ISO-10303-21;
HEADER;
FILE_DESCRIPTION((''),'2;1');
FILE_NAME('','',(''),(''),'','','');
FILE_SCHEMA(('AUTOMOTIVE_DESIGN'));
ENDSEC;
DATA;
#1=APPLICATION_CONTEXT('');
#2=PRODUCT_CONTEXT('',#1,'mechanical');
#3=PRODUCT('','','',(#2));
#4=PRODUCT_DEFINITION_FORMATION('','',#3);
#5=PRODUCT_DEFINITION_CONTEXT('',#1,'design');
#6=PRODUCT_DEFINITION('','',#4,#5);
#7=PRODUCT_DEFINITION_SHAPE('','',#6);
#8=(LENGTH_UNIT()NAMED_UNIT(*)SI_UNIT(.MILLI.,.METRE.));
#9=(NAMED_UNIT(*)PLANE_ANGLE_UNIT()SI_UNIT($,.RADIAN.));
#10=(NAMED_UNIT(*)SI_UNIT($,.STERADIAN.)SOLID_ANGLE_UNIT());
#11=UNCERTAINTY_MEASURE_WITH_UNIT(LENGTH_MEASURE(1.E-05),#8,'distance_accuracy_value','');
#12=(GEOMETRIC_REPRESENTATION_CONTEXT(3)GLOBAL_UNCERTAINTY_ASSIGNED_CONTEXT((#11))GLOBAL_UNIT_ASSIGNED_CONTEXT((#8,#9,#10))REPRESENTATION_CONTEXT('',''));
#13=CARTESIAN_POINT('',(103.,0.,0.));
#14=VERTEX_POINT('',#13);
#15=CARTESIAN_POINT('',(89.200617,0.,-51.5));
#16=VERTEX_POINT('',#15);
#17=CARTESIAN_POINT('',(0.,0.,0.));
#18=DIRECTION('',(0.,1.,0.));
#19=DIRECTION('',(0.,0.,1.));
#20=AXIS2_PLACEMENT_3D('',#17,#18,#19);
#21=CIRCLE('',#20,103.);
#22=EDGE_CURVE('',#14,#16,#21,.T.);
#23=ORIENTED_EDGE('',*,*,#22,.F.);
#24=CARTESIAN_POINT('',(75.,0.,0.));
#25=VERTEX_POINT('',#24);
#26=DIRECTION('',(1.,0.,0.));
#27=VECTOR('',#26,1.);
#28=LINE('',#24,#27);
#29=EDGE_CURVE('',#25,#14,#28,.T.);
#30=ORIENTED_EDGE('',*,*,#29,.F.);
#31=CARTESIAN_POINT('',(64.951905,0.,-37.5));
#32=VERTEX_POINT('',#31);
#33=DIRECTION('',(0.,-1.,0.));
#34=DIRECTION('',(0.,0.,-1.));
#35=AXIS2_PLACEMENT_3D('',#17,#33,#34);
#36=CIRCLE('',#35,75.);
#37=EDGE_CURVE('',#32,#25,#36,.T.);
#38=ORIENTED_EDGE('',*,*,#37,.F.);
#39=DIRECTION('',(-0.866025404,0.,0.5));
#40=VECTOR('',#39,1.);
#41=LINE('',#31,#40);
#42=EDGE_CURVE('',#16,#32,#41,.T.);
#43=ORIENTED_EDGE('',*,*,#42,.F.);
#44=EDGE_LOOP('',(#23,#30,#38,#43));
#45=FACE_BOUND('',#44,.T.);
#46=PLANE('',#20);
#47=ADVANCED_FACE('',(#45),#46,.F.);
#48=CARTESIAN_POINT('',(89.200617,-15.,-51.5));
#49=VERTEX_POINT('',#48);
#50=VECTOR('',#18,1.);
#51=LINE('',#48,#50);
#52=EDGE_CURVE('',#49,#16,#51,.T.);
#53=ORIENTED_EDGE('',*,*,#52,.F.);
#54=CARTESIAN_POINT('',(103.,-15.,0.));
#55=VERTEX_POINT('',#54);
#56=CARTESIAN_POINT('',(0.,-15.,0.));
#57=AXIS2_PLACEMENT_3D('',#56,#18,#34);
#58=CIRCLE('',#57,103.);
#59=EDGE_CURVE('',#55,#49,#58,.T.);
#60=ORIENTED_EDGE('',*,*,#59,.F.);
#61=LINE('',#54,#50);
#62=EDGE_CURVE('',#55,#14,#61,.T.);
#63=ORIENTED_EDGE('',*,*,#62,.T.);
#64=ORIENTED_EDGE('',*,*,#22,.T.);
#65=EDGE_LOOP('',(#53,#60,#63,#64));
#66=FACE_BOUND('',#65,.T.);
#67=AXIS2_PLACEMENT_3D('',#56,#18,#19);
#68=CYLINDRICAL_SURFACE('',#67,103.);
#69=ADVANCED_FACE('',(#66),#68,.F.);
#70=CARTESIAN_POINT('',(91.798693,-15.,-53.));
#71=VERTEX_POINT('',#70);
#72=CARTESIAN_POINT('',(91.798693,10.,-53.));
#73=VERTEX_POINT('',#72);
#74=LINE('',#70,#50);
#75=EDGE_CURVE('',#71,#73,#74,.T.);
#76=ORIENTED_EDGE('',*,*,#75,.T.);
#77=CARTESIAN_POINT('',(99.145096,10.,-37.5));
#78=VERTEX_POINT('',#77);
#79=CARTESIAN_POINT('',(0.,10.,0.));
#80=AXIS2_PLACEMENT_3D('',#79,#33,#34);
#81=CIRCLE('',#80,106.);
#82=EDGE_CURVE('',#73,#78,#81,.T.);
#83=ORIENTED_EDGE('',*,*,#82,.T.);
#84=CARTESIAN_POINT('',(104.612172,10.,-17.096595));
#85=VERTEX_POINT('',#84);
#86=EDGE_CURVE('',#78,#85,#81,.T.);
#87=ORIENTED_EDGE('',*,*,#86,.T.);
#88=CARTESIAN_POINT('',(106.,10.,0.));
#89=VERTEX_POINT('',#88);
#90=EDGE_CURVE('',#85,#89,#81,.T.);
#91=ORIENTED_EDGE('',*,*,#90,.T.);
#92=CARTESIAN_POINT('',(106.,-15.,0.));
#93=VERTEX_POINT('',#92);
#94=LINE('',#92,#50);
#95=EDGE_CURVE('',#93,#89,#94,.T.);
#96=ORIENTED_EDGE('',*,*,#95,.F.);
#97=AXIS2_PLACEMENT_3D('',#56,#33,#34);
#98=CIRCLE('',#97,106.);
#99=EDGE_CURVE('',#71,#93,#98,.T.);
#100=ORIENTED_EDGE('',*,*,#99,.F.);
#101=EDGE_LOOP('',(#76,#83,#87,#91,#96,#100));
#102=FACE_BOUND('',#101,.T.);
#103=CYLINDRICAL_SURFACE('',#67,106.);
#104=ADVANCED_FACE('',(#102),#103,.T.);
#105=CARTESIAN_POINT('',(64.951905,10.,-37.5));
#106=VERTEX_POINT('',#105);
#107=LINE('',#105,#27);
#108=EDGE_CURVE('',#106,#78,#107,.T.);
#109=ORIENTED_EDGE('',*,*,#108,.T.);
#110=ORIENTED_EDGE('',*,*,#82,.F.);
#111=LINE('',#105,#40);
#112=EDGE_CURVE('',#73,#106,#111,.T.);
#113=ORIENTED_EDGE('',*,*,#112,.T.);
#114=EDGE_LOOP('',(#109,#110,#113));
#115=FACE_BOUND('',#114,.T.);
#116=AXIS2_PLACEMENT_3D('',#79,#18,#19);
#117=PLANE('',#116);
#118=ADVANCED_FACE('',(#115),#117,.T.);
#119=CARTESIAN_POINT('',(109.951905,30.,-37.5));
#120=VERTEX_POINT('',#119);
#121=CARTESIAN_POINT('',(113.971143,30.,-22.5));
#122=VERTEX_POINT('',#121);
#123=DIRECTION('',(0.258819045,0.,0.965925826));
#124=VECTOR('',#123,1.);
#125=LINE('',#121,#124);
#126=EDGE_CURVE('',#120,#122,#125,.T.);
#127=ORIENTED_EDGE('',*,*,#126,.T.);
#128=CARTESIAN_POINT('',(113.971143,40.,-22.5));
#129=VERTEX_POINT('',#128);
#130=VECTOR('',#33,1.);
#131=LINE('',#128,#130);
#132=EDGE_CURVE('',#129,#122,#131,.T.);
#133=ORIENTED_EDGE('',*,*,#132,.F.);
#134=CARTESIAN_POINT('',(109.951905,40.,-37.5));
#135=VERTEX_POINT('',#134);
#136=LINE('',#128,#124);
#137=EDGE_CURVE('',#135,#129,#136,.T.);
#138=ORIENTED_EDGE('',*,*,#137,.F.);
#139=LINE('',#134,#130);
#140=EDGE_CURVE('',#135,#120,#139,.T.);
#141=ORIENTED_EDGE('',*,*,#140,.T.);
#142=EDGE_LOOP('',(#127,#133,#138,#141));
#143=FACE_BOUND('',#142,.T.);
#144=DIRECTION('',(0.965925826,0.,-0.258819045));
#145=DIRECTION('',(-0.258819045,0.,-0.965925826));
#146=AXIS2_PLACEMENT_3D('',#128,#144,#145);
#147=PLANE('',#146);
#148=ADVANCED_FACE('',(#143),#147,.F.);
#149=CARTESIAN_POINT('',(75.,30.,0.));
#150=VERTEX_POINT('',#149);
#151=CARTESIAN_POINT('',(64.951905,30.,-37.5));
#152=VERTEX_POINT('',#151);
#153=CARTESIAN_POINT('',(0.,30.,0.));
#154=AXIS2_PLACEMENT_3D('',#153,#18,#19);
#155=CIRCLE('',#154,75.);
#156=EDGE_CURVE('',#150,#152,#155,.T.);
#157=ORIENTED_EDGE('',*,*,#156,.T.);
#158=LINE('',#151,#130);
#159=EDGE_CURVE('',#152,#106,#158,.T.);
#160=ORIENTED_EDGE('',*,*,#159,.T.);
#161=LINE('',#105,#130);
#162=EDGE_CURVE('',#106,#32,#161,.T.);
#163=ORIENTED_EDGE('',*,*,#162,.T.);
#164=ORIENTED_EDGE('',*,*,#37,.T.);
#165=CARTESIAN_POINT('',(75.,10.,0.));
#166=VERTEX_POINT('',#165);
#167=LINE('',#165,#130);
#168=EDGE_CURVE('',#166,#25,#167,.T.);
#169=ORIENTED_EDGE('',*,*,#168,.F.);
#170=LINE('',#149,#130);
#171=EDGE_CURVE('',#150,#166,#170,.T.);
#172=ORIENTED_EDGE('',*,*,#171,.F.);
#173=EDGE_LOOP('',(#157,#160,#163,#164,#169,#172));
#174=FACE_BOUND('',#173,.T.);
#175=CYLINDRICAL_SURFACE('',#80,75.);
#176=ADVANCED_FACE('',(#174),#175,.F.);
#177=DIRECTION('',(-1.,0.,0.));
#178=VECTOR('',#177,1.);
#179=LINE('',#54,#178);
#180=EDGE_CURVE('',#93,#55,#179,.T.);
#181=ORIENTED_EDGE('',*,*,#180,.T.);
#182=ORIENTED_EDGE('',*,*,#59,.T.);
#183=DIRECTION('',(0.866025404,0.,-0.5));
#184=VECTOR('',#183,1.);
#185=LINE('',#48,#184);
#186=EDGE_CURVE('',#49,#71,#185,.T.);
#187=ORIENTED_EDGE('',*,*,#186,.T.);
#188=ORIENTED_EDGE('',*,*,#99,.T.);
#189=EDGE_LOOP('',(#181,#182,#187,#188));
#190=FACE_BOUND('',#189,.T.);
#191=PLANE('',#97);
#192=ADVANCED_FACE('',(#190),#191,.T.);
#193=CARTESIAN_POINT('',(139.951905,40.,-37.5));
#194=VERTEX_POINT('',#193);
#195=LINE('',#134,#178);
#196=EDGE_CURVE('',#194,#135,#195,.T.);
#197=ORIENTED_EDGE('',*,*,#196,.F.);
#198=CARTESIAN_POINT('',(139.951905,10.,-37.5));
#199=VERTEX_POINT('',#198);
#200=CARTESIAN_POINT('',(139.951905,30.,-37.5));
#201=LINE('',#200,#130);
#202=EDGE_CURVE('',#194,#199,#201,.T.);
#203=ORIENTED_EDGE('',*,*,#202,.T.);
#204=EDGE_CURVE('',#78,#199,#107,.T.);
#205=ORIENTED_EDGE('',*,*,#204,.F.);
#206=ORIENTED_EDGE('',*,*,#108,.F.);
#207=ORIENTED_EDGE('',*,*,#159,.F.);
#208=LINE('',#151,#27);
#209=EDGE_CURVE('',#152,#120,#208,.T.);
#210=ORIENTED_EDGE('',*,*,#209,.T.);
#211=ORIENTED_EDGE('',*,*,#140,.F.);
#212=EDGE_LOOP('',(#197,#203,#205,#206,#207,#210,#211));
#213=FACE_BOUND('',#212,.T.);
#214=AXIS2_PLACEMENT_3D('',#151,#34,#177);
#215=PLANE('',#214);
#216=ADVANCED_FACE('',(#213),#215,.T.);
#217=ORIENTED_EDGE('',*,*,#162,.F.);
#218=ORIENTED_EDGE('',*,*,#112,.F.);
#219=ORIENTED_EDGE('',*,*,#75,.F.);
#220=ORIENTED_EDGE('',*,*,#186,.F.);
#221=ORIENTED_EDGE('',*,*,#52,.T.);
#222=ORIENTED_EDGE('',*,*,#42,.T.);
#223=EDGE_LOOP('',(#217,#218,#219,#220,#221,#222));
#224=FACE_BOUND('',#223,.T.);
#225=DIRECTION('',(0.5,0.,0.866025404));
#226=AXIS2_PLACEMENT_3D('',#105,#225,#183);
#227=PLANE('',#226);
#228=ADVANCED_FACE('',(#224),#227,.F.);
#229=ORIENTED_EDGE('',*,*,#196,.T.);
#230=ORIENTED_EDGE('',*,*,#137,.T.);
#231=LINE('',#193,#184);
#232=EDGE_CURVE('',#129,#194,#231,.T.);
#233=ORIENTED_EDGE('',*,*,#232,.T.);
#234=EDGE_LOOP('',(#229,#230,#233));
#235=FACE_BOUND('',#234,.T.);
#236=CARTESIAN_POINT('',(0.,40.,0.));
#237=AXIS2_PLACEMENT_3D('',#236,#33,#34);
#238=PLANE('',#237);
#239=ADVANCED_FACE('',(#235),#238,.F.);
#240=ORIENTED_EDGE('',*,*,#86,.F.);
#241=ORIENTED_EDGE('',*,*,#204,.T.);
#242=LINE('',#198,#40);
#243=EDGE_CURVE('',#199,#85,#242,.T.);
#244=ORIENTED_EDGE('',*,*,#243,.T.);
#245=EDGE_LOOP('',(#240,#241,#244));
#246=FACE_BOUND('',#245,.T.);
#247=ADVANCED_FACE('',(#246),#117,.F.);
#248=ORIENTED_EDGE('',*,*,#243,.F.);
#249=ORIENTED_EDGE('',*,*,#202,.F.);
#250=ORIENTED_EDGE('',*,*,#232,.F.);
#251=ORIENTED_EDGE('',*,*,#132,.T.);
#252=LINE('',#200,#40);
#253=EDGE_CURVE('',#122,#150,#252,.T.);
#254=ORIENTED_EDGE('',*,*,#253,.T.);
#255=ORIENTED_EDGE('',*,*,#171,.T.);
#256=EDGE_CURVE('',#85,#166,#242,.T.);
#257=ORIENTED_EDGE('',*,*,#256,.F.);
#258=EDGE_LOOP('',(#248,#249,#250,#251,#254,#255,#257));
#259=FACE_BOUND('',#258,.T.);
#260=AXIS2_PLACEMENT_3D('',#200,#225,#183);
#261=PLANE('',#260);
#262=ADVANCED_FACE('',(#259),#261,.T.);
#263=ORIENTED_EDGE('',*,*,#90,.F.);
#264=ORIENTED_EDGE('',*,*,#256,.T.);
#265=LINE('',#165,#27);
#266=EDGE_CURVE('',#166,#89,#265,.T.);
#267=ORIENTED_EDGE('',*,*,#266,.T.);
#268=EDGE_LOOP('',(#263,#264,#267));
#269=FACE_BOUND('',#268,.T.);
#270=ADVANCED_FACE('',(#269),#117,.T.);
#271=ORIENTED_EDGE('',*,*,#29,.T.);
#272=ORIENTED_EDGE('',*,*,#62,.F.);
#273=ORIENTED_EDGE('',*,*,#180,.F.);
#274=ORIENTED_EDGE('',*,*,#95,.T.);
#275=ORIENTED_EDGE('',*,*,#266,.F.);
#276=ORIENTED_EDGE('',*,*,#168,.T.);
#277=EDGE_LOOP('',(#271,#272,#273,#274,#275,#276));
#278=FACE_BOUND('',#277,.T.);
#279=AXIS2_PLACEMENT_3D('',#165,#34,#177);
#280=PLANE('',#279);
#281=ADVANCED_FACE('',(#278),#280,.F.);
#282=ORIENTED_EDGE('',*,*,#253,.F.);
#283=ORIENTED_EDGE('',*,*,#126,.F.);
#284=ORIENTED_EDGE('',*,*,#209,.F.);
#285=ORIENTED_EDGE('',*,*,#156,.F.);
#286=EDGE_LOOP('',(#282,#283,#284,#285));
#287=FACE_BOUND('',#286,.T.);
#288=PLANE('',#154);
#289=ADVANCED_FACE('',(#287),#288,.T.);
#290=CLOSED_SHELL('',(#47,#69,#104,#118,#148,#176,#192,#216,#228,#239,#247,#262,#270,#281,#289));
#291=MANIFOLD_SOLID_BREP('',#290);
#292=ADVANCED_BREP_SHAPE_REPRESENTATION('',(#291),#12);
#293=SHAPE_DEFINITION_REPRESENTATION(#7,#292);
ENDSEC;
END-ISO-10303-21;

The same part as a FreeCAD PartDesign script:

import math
import FreeCAD as App
import Part
import Sketcher
from FreeCAD import Vector
Q = App.Units.Quantity


def add_polygon(sketch, points):
    """Adds a closed chain of lines whose ends are joined by coincident constraints."""
    first, n = sketch.GeometryCount, len(points)
    for a, b in zip(points, points[1:] + points[:1]):
        sketch.addGeometry(Part.LineSegment(App.Vector(*a, 0), App.Vector(*b, 0)), False)
    for i in range(n):
        sketch.addConstraint(Sketcher.Constraint("Coincident", first + i, 2, first + (i + 1) % n, 1))

doc = App.newDocument("Part")
body = doc.addObject("PartDesign::Body", "Body")

sketch1 = doc.addObject("Sketcher::SketchObject", "Sketch")
body.addObject(sketch1)
sketch1.AttachmentSupport = (doc.XZ_Plane, [""])
sketch1.MapMode = "FlatFace"
sketch1.addGeometry(Part.LineSegment(Vector(89, -52, 0), Vector(65, -38, 0)), False)
sketch1.addGeometry(Part.ArcOfCircle(Part.Circle(Vector(0, 0, 0), Vector(0, 0, 1), 75), math.radians(-30), math.radians(0)), False)
sketch1.addGeometry(Part.LineSegment(Vector(75, 0, 0), Vector(103, 0, 0)), False)
sketch1.addGeometry(Part.ArcOfCircle(Part.Circle(Vector(0, 0, 0), Vector(0, 0, 1), 103), math.radians(-30), math.radians(0)), False)
sketch1.addConstraint(Sketcher.Constraint("Coincident", 0, 2, 1, 1))
sketch1.addConstraint(Sketcher.Constraint("Coincident", 1, 2, 2, 1))
sketch1.addConstraint(Sketcher.Constraint("Coincident", 2, 2, 3, 2))
sketch1.addConstraint(Sketcher.Constraint("Coincident", 3, 1, 0, 1))
sketch1.addConstraint(Sketcher.Constraint("Horizontal", 2))
sketch1.addConstraint(Sketcher.Constraint("Coincident", 1, 3, -1, 1))
sketch1.addConstraint(Sketcher.Constraint("Coincident", 3, 3, -1, 1))
sketch1.addConstraint(Sketcher.Constraint("PointOnObject", 1, 2, -1))
sketch1.addConstraint(Sketcher.Constraint("Radius", 1, 75.0))
sketch1.addConstraint(Sketcher.Constraint("Radius", 3, 103.0))
sketch1.addConstraint(Sketcher.Constraint("Angle", 0, Q("150 deg")))
sketch1.addConstraint(Sketcher.Constraint("DistanceY", 0, 2, -1, 1, 37.5))
pad1 = doc.addObject("PartDesign::Pad", "Pad")
body.addObject(pad1)
pad1.Profile = sketch1
pad1.Length = 10
pad1.Reversed = True

sketch2 = doc.addObject("Sketcher::SketchObject", "Sketch001")
body.addObject(sketch2)
sketch2.AttachmentSupport = (doc.XZ_Plane, [""])
sketch2.MapMode = "FlatFace"
sketch2.AttachmentOffset = App.Placement(Vector(0, 0, -10), App.Rotation())
sketch2.addGeometry(Part.LineSegment(Vector(140, -38, 0), Vector(65, -38, 0)), False)
sketch2.addGeometry(Part.ArcOfCircle(Part.Circle(Vector(0, 0, 0), Vector(0, 0, 1), 75), math.radians(-30), math.radians(0)), False)
sketch2.addGeometry(Part.LineSegment(Vector(75, 0, 0), Vector(140, -38, 0)), False)
sketch2.addConstraint(Sketcher.Constraint("Coincident", 0, 2, 1, 1))
sketch2.addConstraint(Sketcher.Constraint("Coincident", 1, 2, 2, 1))
sketch2.addConstraint(Sketcher.Constraint("Coincident", 2, 2, 0, 1))
sketch2.addConstraint(Sketcher.Constraint("Horizontal", 0))
sketch2.addConstraint(Sketcher.Constraint("Coincident", 1, 3, -1, 1))
sketch2.addConstraint(Sketcher.Constraint("PointOnObject", 1, 2, -1))
sketch2.addConstraint(Sketcher.Constraint("Radius", 1, 75.0))
sketch2.addConstraint(Sketcher.Constraint("DistanceX", 0, 2, 0, 1, 75.0))
sketch2.addConstraint(Sketcher.Constraint("Angle", 2, Q("-30 deg")))
pad2 = doc.addObject("PartDesign::Pad", "Pad001")
body.addObject(pad2)
pad2.Profile = sketch2
pad2.Length = 20
pad2.Reversed = True

sketch3 = doc.addObject("Sketcher::SketchObject", "Sketch002")
body.addObject(sketch3)
sketch3.AttachmentSupport = (doc.XZ_Plane, [""])
sketch3.MapMode = "FlatFace"
sketch3.AttachmentOffset = App.Placement(Vector(0, 0, -30), App.Rotation())
add_polygon(sketch3, [(140, -38), (110, -38), (114, -22)])
sketch3.addConstraint(Sketcher.Constraint("Horizontal", 0))
sketch3.addConstraint(Sketcher.Constraint("DistanceX", 0, 2, 0, 1, 30.0))
sketch3.addConstraint(Sketcher.Constraint("Angle", 1, Q("75 deg")))
sketch3.addConstraint(Sketcher.Constraint("Angle", 2, Q("-30 deg")))
sketch3.addConstraint(Sketcher.Constraint("DistanceY", 0, 2, -1, 1, 37.5))
sketch3.addConstraint(Sketcher.Constraint("DistanceX", -1, 1, 0, 2, 109.951905))
pad3 = doc.addObject("PartDesign::Pad", "Pad002")
body.addObject(pad3)
pad3.Profile = sketch3
pad3.Length = 10
pad3.Reversed = True

sketch4 = doc.addObject("Sketcher::SketchObject", "Sketch003")
body.addObject(sketch4)
sketch4.AttachmentSupport = (doc.XZ_Plane, [""])
sketch4.MapMode = "FlatFace"
sketch4.AttachmentOffset = App.Placement(Vector(0, 0, 15), App.Rotation())
sketch4.addGeometry(Part.LineSegment(Vector(89.2, -51.5, 0), Vector(91.8, -53, 0)), False)
sketch4.addGeometry(Part.ArcOfCircle(Part.Circle(Vector(0, 0, 0), Vector(0, 0, 1), 106), math.radians(-30), math.radians(0)), False)
sketch4.addGeometry(Part.LineSegment(Vector(106, 0, 0), Vector(103, 0, 0)), False)
sketch4.addGeometry(Part.ArcOfCircle(Part.Circle(Vector(0, 0, 0), Vector(0, 0, 1), 103), math.radians(-30), math.radians(0)), False)
sketch4.addConstraint(Sketcher.Constraint("Coincident", 0, 2, 1, 1))
sketch4.addConstraint(Sketcher.Constraint("Coincident", 1, 2, 2, 1))
sketch4.addConstraint(Sketcher.Constraint("Coincident", 2, 2, 3, 2))
sketch4.addConstraint(Sketcher.Constraint("Coincident", 3, 1, 0, 1))
sketch4.addConstraint(Sketcher.Constraint("Horizontal", 2))
sketch4.addConstraint(Sketcher.Constraint("Coincident", 1, 3, -1, 1))
sketch4.addConstraint(Sketcher.Constraint("Coincident", 3, 3, -1, 1))
sketch4.addConstraint(Sketcher.Constraint("PointOnObject", 1, 2, -1))
sketch4.addConstraint(Sketcher.Constraint("Radius", 1, 106.0))
sketch4.addConstraint(Sketcher.Constraint("Radius", 3, 103.0))
sketch4.addConstraint(Sketcher.Constraint("Angle", 0, Q("-30 deg")))
sketch4.addConstraint(Sketcher.Constraint("DistanceY", 0, 2, -1, 1, 53.0))
pad4 = doc.addObject("PartDesign::Pad", "Pad003")
body.addObject(pad4)
pad4.Profile = sketch4
pad4.Length = 25
pad4.Reversed = True

doc.recompute()
